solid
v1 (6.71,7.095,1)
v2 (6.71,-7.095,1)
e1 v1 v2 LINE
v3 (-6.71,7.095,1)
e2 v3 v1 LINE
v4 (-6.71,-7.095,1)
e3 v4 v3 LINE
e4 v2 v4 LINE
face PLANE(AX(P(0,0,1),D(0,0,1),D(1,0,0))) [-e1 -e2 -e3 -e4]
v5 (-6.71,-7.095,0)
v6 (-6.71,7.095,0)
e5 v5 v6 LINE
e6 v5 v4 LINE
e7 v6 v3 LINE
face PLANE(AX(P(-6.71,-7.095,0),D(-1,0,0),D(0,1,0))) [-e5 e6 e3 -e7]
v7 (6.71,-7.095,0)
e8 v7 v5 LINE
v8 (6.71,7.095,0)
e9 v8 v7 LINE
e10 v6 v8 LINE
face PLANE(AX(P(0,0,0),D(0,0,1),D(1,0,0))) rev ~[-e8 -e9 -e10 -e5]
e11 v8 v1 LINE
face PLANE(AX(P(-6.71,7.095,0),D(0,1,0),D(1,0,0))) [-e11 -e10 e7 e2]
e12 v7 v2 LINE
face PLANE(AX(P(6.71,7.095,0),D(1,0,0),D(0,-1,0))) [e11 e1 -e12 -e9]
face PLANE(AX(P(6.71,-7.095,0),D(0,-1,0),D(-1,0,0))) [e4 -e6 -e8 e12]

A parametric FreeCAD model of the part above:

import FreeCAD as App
import Part
import Sketcher
from FreeCAD import Vector

doc = App.newDocument("Part")
params = doc.addObject("Spreadsheet::Sheet", "Params")
for row, (alias, value) in enumerate([
    ("sketch1_width", "13.42 mm"),
    ("sketch1_height", "14.19 mm"),
    ("pad1_length", "1 mm"),
], start=1):
    params.set(f"A{row}", alias)
    params.set(f"B{row}", "=" + value)
    params.setAlias(f"B{row}", alias)

body = doc.addObject("PartDesign::Body", "Body")

# Sketch on XY plane
sketch1 = doc.addObject("Sketcher::SketchObject", "Sketch")
body.addObject(sketch1)
sketch1.AttachmentSupport = (doc.XY_Plane, [""])
sketch1.MapMode = "FlatFace"
sketch1.addGeometry([
    Part.LineSegment(Vector(7, 7, 0), Vector(-7, 7, 0)),
    Part.LineSegment(Vector(-7, 7, 0), Vector(-7, -7, 0)),
    Part.LineSegment(Vector(-7, -7, 0), Vector(7, -7, 0)),
    Part.LineSegment(Vector(7, -7, 0), Vector(7, 7, 0)),
], False)
sketch1.addConstraint([
    Sketcher.Constraint("Coincident", 0, 2, 1, 1),
    Sketcher.Constraint("Coincident", 1, 2, 2, 1),
    Sketcher.Constraint("Coincident", 2, 2, 3, 1),
    Sketcher.Constraint("Coincident", 3, 2, 0, 1),
    Sketcher.Constraint("Horizontal", 0),
    Sketcher.Constraint("Vertical", 1),
    Sketcher.Constraint("Horizontal", 2),
    Sketcher.Constraint("Vertical", 3),
    Sketcher.Constraint("Symmetric", 0, 2, 2, 2, -1, 1),
    Sketcher.Constraint("DistanceX", 0, 2, 0, 1, 13.42),
    Sketcher.Constraint("DistanceY", 1, 2, 1, 1, 14.19),
])
sketch1.setExpression("Constraints[9]", "Params.sketch1_width")
sketch1.setExpression("Constraints[10]", "Params.sketch1_height")
pad1 = doc.addObject("PartDesign::Pad", "Pad")
body.addObject(pad1)
pad1.Profile = sketch1
pad1.setExpression("Length", "Params.pad1_length")

doc.recompute()
